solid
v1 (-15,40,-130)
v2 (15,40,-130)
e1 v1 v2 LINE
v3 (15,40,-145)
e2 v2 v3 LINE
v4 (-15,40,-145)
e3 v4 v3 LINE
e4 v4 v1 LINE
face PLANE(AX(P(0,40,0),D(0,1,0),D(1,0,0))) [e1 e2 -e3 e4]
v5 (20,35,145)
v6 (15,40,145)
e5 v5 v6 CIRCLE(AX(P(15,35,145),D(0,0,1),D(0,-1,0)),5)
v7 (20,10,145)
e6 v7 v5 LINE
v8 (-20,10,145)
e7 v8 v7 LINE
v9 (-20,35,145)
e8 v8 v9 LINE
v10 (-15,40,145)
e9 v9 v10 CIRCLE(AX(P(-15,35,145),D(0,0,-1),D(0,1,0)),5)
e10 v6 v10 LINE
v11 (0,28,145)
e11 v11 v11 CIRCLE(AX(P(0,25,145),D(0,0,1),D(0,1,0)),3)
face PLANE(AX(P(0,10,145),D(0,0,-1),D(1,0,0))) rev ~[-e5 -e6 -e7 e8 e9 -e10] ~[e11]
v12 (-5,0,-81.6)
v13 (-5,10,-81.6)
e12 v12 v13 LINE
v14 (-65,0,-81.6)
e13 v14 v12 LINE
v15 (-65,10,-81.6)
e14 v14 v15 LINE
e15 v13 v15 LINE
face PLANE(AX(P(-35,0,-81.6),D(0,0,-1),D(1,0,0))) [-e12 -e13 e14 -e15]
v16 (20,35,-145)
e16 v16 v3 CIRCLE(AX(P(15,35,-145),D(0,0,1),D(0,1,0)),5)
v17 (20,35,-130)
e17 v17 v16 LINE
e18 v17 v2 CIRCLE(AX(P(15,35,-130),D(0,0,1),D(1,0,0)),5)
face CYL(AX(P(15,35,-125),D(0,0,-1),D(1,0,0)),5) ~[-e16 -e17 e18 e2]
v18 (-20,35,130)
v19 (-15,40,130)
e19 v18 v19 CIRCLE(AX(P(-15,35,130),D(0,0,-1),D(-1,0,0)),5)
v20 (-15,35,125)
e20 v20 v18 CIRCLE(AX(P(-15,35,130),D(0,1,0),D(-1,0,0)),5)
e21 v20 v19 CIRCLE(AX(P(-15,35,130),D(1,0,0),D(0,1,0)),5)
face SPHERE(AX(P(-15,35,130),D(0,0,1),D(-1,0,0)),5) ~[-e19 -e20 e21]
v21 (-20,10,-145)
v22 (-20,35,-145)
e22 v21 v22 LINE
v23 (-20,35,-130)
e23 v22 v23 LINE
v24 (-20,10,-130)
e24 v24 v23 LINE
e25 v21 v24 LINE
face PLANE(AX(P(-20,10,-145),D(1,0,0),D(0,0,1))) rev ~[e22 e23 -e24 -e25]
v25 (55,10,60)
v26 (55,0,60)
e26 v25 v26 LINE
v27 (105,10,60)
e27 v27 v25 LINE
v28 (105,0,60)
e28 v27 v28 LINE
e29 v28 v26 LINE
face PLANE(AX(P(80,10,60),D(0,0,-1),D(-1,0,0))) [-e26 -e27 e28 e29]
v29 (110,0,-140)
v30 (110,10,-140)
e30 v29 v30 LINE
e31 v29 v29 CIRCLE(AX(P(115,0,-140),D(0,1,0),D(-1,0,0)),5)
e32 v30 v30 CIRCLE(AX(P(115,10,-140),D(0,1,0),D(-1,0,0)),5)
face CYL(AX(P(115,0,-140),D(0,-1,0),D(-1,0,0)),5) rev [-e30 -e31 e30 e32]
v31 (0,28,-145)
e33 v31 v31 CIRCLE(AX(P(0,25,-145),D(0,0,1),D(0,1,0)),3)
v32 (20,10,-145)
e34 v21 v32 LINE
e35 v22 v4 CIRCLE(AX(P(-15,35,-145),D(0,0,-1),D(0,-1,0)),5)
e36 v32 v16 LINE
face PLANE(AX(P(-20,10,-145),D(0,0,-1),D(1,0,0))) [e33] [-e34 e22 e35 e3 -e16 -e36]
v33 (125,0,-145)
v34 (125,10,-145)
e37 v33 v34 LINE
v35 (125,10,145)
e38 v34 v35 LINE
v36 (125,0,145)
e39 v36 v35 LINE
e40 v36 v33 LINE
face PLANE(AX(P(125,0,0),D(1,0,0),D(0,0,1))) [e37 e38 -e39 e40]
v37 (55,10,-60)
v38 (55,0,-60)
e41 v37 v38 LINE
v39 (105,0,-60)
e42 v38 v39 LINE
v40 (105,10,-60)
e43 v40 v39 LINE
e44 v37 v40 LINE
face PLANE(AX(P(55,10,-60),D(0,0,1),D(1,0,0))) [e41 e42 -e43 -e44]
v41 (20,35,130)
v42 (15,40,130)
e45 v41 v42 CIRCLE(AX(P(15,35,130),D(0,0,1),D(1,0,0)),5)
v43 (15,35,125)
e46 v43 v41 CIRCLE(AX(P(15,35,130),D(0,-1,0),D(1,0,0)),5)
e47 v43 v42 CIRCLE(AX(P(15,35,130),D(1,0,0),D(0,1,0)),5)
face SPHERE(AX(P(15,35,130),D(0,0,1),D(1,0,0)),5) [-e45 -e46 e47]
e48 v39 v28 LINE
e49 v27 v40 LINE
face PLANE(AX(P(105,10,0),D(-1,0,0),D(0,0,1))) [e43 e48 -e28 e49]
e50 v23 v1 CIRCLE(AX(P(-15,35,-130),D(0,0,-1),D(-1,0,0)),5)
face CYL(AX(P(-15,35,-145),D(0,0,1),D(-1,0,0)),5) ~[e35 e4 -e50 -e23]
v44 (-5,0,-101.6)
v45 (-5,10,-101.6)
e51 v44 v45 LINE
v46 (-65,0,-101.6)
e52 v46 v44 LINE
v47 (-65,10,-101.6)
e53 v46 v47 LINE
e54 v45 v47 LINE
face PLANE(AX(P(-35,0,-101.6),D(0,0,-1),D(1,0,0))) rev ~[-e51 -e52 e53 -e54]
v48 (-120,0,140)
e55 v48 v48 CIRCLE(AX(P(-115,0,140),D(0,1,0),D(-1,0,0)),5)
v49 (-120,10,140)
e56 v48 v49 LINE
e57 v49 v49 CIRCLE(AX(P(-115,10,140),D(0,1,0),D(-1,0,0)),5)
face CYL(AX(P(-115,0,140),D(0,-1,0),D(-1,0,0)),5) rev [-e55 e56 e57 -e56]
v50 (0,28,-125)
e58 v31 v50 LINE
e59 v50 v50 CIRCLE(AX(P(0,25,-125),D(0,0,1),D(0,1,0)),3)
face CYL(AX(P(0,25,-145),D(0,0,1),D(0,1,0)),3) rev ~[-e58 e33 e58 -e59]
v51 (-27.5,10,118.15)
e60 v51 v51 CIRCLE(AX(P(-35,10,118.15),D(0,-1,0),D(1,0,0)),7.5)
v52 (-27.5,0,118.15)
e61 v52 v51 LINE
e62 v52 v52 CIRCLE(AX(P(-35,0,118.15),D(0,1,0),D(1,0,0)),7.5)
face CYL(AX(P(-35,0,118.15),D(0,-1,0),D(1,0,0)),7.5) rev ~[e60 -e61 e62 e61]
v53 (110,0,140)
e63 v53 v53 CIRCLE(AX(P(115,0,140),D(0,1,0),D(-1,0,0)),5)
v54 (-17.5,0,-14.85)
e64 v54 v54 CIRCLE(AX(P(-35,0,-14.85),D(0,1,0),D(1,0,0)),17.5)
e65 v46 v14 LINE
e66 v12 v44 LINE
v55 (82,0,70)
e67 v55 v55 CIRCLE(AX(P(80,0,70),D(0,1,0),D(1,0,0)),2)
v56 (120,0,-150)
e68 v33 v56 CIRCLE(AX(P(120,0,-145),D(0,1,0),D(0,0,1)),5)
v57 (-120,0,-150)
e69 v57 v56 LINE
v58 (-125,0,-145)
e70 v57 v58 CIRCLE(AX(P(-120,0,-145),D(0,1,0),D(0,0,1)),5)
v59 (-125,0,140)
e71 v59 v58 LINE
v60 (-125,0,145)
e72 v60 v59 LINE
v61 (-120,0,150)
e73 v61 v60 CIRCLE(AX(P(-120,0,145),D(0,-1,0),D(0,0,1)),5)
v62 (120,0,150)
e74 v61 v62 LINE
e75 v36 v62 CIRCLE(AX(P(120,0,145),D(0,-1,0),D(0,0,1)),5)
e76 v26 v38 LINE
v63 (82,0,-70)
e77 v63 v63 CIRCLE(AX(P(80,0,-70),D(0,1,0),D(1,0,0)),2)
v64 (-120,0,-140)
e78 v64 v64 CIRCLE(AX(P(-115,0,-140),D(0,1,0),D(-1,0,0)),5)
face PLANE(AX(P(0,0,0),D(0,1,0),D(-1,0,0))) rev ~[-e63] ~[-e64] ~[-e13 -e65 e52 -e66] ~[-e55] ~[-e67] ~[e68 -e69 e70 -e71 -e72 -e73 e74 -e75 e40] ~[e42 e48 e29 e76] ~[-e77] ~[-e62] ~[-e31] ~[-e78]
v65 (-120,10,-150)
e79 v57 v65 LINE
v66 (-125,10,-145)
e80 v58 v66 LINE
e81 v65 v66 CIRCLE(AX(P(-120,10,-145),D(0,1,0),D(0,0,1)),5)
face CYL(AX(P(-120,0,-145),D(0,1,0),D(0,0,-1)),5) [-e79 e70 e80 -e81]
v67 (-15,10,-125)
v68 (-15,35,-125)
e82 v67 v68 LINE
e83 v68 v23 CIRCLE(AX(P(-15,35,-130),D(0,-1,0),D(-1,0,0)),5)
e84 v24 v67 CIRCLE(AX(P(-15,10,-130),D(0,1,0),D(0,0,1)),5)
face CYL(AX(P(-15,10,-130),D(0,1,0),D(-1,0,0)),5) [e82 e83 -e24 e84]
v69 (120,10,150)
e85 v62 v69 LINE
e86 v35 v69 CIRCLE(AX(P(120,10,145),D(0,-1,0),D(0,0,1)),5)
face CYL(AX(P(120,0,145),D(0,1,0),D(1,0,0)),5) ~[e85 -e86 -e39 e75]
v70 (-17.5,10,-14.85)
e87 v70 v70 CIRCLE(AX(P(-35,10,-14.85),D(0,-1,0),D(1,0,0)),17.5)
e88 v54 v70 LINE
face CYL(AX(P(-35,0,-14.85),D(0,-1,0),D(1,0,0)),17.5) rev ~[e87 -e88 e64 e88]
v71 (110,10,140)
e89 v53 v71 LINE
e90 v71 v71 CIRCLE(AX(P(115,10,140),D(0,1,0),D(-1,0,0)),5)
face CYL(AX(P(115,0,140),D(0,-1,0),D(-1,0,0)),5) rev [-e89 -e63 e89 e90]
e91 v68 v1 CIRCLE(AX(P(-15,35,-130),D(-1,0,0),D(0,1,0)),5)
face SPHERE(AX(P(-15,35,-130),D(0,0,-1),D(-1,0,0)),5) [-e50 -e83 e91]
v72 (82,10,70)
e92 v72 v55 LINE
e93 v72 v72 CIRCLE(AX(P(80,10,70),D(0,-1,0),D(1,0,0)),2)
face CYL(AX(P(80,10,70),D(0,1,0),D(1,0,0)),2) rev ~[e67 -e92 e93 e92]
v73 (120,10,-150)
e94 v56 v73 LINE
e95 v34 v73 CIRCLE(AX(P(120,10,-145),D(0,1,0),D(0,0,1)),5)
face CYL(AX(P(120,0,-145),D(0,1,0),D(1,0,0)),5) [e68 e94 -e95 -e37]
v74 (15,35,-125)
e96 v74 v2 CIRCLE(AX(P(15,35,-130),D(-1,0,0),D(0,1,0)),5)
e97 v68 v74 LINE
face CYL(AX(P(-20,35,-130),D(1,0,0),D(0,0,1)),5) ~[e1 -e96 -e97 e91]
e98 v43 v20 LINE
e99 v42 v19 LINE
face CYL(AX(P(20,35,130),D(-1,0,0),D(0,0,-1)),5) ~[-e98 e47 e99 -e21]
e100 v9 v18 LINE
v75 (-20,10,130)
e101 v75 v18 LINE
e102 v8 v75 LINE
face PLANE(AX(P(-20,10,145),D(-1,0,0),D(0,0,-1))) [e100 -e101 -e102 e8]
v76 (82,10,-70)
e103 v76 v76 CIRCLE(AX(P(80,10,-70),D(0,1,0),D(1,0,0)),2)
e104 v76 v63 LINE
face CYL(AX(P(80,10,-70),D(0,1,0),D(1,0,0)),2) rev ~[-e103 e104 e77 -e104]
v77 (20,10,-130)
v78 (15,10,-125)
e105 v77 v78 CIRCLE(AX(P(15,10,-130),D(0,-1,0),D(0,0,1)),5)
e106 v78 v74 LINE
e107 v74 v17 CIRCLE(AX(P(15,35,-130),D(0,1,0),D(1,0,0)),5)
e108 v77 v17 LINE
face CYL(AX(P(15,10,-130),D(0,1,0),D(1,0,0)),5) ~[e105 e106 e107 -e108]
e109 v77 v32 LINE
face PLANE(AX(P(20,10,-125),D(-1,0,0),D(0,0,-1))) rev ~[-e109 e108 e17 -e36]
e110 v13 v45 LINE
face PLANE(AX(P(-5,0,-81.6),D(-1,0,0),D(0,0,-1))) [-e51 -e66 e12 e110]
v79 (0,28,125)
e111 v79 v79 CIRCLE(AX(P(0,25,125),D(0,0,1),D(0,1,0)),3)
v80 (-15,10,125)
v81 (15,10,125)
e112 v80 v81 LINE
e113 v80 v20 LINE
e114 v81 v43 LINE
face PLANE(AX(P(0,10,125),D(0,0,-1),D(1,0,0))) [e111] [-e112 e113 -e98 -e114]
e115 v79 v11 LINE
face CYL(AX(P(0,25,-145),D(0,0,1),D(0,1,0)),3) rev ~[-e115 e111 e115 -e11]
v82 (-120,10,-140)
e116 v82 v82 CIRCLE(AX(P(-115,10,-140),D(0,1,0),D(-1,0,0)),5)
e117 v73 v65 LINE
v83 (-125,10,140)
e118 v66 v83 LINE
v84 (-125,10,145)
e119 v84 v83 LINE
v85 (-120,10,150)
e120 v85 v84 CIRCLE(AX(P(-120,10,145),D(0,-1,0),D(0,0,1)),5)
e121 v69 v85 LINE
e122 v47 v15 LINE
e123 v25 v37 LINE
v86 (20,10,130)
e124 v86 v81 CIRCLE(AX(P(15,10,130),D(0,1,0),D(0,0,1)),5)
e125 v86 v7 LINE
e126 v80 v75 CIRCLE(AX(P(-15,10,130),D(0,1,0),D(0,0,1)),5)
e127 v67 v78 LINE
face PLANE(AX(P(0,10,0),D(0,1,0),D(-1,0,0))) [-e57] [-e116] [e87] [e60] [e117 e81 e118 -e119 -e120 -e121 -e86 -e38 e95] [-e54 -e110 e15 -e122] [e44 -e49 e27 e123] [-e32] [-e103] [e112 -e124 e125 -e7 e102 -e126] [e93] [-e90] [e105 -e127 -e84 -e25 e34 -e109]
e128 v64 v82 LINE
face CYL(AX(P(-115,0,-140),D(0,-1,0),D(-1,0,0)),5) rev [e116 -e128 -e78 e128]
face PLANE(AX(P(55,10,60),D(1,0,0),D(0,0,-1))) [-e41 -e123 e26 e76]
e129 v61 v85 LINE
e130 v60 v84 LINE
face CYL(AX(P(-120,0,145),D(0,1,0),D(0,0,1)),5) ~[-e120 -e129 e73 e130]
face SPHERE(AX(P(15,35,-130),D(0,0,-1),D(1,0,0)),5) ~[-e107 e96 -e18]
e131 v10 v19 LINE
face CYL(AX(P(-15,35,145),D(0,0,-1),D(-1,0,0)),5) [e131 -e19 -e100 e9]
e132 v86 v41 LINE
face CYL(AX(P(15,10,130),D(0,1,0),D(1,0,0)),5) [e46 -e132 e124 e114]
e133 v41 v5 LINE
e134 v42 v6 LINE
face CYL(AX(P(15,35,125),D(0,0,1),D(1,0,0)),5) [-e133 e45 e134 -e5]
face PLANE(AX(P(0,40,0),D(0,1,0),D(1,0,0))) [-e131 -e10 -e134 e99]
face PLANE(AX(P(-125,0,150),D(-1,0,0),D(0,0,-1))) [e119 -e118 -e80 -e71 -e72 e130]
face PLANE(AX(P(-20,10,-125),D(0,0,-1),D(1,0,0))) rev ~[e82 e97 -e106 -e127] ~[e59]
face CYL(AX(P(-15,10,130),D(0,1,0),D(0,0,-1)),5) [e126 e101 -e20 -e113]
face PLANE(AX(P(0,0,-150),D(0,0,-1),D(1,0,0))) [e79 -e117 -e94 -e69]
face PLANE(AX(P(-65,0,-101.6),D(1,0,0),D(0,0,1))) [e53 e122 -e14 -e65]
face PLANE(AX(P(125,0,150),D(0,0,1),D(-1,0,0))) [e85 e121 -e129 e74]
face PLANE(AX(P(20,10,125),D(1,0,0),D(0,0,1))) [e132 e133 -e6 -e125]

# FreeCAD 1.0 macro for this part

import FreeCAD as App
import Part
import Sketcher


def edges_at(feature, points):
    """Names of the edges that pass closest to the given points."""
    edges = feature.Shape.Edges
    near = lambda p: min(range(len(edges)), key=lambda i: edges[i].distToShape(Part.Vertex(*p))[0])
    return sorted({f"Edge{near(p) + 1}" for p in points})


def add_polygon(sketch, points):
    """Adds a closed chain of lines whose ends are joined by coincident constraints."""
    first, n = sketch.GeometryCount, len(points)
    for a, b in zip(points, points[1:] + points[:1]):
        sketch.addGeometry(Part.LineSegment(App.Vector(*a, 0), App.Vector(*b, 0)), False)
    for i in range(n):
        sketch.addConstraint(Sketcher.Constraint("Coincident", first + i, 2, first + (i + 1) % n, 1))

doc = App.newDocument("Part")
body = doc.addObject("PartDesign::Body", "Body")

# Sketch on XZ plane
sketch1 = doc.addObject("Sketcher::SketchObject", "Sketch")
body.addObject(sketch1)
sketch1.AttachmentSupport = (doc.XZ_Plane, [""])
sketch1.MapMode = "FlatFace"
add_polygon(sketch1, [(125, 150), (125, -150), (-125, -150), (-125, 140), (-125, 150)])  # lines 0-4
sketch1.addGeometry(Part.Circle(App.Vector(115, 140, 0), App.Vector(0, 0, 1), 5), False)  # 5
sketch1.addGeometry(Part.Circle(App.Vector(115, -140, 0), App.Vector(0, 0, 1), 5), False)  # 6
sketch1.addGeometry(Part.Circle(App.Vector(-115, 140, 0), App.Vector(0, 0, 1), 5), False)  # 7
sketch1.addGeometry(Part.Circle(App.Vector(-115, -140, 0), App.Vector(0, 0, 1), 5), False)  # 8
sketch1.addConstraint([
    Sketcher.Constraint("Vertical", 0),
    Sketcher.Constraint("Horizontal", 1),
    Sketcher.Constraint("Vertical", 2),
    Sketcher.Constraint("Vertical", 3),
    Sketcher.Constraint("Horizontal", 4),
    Sketcher.Constraint("Equal", 5, 6),
    Sketcher.Constraint("Equal", 6, 7),
    Sketcher.Constraint("Equal", 7, 8),
    Sketcher.Constraint("Symmetric", 6, 3, 7, 3, -1, 1),
    Sketcher.Constraint("Symmetric", 5, 3, 8, 3, -1, 1),
    Sketcher.Constraint("Symmetric", 0, 2, 3, 2, -1, 1),
    Sketcher.Constraint("Symmetric", 5, 3, 7, 3, -2),
    Sketcher.Constraint("Horizontal", 7, 3, 2, 2),
    Sketcher.Constraint("Diameter", 5, 10.0),
    Sketcher.Constraint("DistanceX", 1, 2, 1, 1, 250.0),
    Sketcher.Constraint("DistanceY", 0, 2, 0, 1, 300.0),
    Sketcher.Constraint("DistanceY", 3, 1, 3, 2, 10.0),
    Sketcher.Constraint("DistanceX", 6, 3, 0, 2, 10.0),
])
pad1 = doc.addObject("PartDesign::Pad", "Pad")
body.addObject(pad1)
pad1.Profile = sketch1
pad1.Length = 10
pad1.Reversed = True
doc.recompute()

fillet = doc.addObject("PartDesign::Fillet", "Fillet")
body.addObject(fillet)
fillet.Base = (pad1, edges_at(pad1, [
    (-125, 5, 150),
    (-125, 5, -150),
    (125, 5, -150),
    (125, 5, 150),
]))
fillet.Radius = 5

# Sketch on XZ plane
sketch2 = doc.addObject("Sketcher::SketchObject", "Sketch001")
body.addObject(sketch2)
sketch2.AttachmentSupport = (doc.XZ_Plane, [""])
sketch2.MapMode = "FlatFace"
sketch2.AttachmentOffset = App.Placement(App.Vector(0, 0, -10), App.Rotation())
add_polygon(sketch2, [(20, -125), (20, -145), (-20, -145), (-20, -125)])  # lines 0-3
add_polygon(sketch2, [(20, 145), (20, 125), (-20, 125), (-20, 145)])  # lines 4-7
sketch2.addConstraint([
    Sketcher.Constraint("Vertical", 0),
    Sketcher.Constraint("Horizontal", 1),
    Sketcher.Constraint("Vertical", 2),
    Sketcher.Constraint("Horizontal", 3),
    Sketcher.Constraint("Vertical", 4),
    Sketcher.Constraint("Horizontal", 5),
    Sketcher.Constraint("Vertical", 6),
    Sketcher.Constraint("Horizontal", 7),
    Sketcher.Constraint("Symmetric", 2, 2, 4, 2, -1, 1),
    Sketcher.Constraint("Symmetric", 0, 2, 6, 2, -1, 1),
    Sketcher.Constraint("Vertical", 3, 2, 4, 2),
    Sketcher.Constraint("DistanceX", 1, 2, 1, 1, 40.0),
    Sketcher.Constraint("DistanceY", 0, 2, 0, 1, 20.0),
    Sketcher.Constraint("DistanceY", 0, 2, -1, 1, 145.0),
])
pad2 = doc.addObject("PartDesign::Pad", "Pad001")
body.addObject(pad2)
pad2.Profile = sketch2
pad2.Length = 30
pad2.Reversed = True
doc.recompute()

fillet2 = doc.addObject("PartDesign::Fillet", "Fillet001")
body.addObject(fillet2)
fillet2.Base = (pad2, edges_at(pad2, [
    (-20, 40, -135),
    (20, 40, -135),
    (-20, 40, 135),
    (20, 40, 135),
    (20, 25, 125),
    (20, 25, -125),
    (-20, 25, -125),
    (-20, 25, 125),
    (0, 40, 125),
    (0, 40, -125),
]))
fillet2.Radius = 5

# Sketch on XY plane
sketch3 = doc.addObject("Sketcher::SketchObject", "Sketch002")
body.addObject(sketch3)
sketch3.AttachmentSupport = (doc.XY_Plane, [""])
sketch3.MapMode = "FlatFace"
sketch3.AttachmentOffset = App.Placement(App.Vector(0, 0, -145), App.Rotation())
sketch3.addGeometry(Part.Circle(App.Vector(0, 25, 0), App.Vector(0, 0, 1), 3), False)
sketch3.addConstraint([
    Sketcher.Constraint("PointOnObject", 0, 3, -2),
    Sketcher.Constraint("Diameter", 0, 6.0),
    Sketcher.Constraint("DistanceY", -1, 1, 0, 3, 25.0),
])
doc.recompute()
hole = doc.addObject("PartDesign::Hole", "Hole")
body.addObject(hole)
hole.Profile = sketch3
hole.ThreadType = "None"
hole.Diameter = 6
hole.DepthType = "ThroughAll"
hole.Reversed = True

# Sketch on XZ plane
sketch4 = doc.addObject("Sketcher::SketchObject", "Sketch003")
body.addObject(sketch4)
sketch4.AttachmentSupport = (doc.XZ_Plane, [""])
sketch4.MapMode = "FlatFace"
sketch4.AttachmentOffset = App.Placement(App.Vector(0, 0, -10), App.Rotation())
sketch4.addGeometry(Part.Circle(App.Vector(80, 70, 0), App.Vector(0, 0, 1), 2), False)  # 0
add_polygon(sketch4, [(55, 60), (105, 60), (105, -60), (55, -60)])  # lines 1-4
sketch4.addGeometry(Part.Circle(App.Vector(80, -70, 0), App.Vector(0, 0, 1), 2), False)  # 5
sketch4.addConstraint([
    Sketcher.Constraint("Horizontal", 1),
    Sketcher.Constraint("Vertical", 2),
    Sketcher.Constraint("Horizontal", 3),
    Sketcher.Constraint("Vertical", 4),
    Sketcher.Constraint("Equal", 0, 5),
    Sketcher.Constraint("Symmetric", 0, 3, 5, 3, -1),
    Sketcher.Constraint("Diameter", 0, 4.0),
    Sketcher.Constraint("DistanceX", 1, 1, 1, 2, 50.0),
    Sketcher.Constraint("DistanceY", 2, 2, 2, 1, 120.0),
    Sketcher.Constraint("DistanceY", -1, 1, 0, 3, 70.0),
    Sketcher.Constraint("DistanceY", -1, 1, 1, 2, 60.0),
    Sketcher.Constraint("DistanceX", 0, 3, 1, 2, 25.0),
    Sketcher.Constraint("DistanceX", -1, 1, 0, 3, 80.0),
])
pocket1 = doc.addObject("PartDesign::Pocket", "Pocket")
body.addObject(pocket1)
pocket1.Profile = sketch4
pocket1.Length = 30
pocket1.Reversed = True

# Sketch on XZ plane
sketch5 = doc.addObject("Sketcher::SketchObject", "Sketch004")
body.addObject(sketch5)
sketch5.AttachmentSupport = (doc.XZ_Plane, [""])
sketch5.MapMode = "FlatFace"
sketch5.addGeometry(Part.Circle(App.Vector(-35, -15, 0), App.Vector(0, 0, 1), 18), False)  # 0
sketch5.addGeometry(Part.Circle(App.Vector(-35, 118, 0), App.Vector(0, 0, 1), 8), False)  # 1
add_polygon(sketch5, [(-5, -82), (-65, -82), (-65, -102), (-5, -102)])  # lines 2-5
sketch5.addConstraint([
    Sketcher.Constraint("Horizontal", 2),
    Sketcher.Constraint("Vertical", 3),
    Sketcher.Constraint("Horizontal", 4),
    Sketcher.Constraint("Vertical", 5),
    Sketcher.Constraint("Vertical", 0, 3, 1, 3),
    Sketcher.Constraint("Diameter", 0, 35.0),
    Sketcher.Constraint("Diameter", 1, 15.0),
    Sketcher.Constraint("DistanceX", 2, 2, 2, 1, 60.0),
    Sketcher.Constraint("DistanceY", 3, 2, 3, 1, 20.0),
    Sketcher.Constraint("DistanceX", 0, 3, -1, 1, 35.0),
    Sketcher.Constraint("DistanceX", 2, 2, 0, 3, 30.0),
    Sketcher.Constraint("DistanceY", 2, 2, 0, 3, 66.75),
    Sketcher.Constraint("DistanceY", 0, 3, 1, 3, 133.0),
    Sketcher.Constraint("DistanceY", 2, 2, -1, 1, 81.6),
])
pocket2 = doc.addObject("PartDesign::Pocket", "Pocket001")
body.addObject(pocket2)
pocket2.Profile = sketch5
pocket2.Length = 10

doc.recompute()
